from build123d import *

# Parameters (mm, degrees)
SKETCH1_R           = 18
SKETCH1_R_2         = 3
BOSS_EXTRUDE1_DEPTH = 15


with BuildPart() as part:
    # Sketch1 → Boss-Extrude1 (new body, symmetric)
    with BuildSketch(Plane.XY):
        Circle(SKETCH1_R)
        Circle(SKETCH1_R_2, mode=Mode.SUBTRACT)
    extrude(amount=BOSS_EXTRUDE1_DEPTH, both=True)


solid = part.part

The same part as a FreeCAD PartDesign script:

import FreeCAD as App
import Part
import Sketcher
Q = App.Units.Quantity

doc = App.newDocument("Part")
params = doc.addObject("Spreadsheet::Sheet", "Params")
for row, (alias, value) in enumerate([
    ("sketch1_diameter", "36 mm"),
    ("sketch1_diameter2", "6 mm"),
    ("pad1_length", "30 mm"),
], start=1):
    params.set(f"A{row}", alias)
    params.set(f"B{row}", "=" + value)
    params.setAlias(f"B{row}", alias)

body = doc.addObject("PartDesign::Body", "Body")

sketch1 = doc.addObject("Sketcher::SketchObject", "Sketch")
body.addObject(sketch1)
sketch1.AttachmentSupport = (doc.XY_Plane, [""])
sketch1.MapMode = "FlatFace"
sketch1.addGeometry([
    Part.Circle(App.Vector(0, 0, 0), App.Vector(0, 0, 1), 18),
    Part.Circle(App.Vector(0, 0, 0), App.Vector(0, 0, 1), 3),
], False)
sketch1.addConstraint([
    Sketcher.Constraint("Coincident", 0, 3, -1, 1),
    Sketcher.Constraint("Coincident", 1, 3, -1, 1),
    Sketcher.Constraint("Diameter", 0, Q("36 mm")),
    Sketcher.Constraint("Diameter", 1, Q("6 mm")),
])
sketch1.setExpression("Constraints[2]", "Params.sketch1_diameter")
sketch1.setExpression("Constraints[3]", "Params.sketch1_diameter2")
pad1 = doc.addObject("PartDesign::Pad", "Pad")
body.addObject(pad1)
pad1.Profile = sketch1
pad1.setExpression("Length", "Params.pad1_length")
pad1.Midplane = True

doc.recompute()
